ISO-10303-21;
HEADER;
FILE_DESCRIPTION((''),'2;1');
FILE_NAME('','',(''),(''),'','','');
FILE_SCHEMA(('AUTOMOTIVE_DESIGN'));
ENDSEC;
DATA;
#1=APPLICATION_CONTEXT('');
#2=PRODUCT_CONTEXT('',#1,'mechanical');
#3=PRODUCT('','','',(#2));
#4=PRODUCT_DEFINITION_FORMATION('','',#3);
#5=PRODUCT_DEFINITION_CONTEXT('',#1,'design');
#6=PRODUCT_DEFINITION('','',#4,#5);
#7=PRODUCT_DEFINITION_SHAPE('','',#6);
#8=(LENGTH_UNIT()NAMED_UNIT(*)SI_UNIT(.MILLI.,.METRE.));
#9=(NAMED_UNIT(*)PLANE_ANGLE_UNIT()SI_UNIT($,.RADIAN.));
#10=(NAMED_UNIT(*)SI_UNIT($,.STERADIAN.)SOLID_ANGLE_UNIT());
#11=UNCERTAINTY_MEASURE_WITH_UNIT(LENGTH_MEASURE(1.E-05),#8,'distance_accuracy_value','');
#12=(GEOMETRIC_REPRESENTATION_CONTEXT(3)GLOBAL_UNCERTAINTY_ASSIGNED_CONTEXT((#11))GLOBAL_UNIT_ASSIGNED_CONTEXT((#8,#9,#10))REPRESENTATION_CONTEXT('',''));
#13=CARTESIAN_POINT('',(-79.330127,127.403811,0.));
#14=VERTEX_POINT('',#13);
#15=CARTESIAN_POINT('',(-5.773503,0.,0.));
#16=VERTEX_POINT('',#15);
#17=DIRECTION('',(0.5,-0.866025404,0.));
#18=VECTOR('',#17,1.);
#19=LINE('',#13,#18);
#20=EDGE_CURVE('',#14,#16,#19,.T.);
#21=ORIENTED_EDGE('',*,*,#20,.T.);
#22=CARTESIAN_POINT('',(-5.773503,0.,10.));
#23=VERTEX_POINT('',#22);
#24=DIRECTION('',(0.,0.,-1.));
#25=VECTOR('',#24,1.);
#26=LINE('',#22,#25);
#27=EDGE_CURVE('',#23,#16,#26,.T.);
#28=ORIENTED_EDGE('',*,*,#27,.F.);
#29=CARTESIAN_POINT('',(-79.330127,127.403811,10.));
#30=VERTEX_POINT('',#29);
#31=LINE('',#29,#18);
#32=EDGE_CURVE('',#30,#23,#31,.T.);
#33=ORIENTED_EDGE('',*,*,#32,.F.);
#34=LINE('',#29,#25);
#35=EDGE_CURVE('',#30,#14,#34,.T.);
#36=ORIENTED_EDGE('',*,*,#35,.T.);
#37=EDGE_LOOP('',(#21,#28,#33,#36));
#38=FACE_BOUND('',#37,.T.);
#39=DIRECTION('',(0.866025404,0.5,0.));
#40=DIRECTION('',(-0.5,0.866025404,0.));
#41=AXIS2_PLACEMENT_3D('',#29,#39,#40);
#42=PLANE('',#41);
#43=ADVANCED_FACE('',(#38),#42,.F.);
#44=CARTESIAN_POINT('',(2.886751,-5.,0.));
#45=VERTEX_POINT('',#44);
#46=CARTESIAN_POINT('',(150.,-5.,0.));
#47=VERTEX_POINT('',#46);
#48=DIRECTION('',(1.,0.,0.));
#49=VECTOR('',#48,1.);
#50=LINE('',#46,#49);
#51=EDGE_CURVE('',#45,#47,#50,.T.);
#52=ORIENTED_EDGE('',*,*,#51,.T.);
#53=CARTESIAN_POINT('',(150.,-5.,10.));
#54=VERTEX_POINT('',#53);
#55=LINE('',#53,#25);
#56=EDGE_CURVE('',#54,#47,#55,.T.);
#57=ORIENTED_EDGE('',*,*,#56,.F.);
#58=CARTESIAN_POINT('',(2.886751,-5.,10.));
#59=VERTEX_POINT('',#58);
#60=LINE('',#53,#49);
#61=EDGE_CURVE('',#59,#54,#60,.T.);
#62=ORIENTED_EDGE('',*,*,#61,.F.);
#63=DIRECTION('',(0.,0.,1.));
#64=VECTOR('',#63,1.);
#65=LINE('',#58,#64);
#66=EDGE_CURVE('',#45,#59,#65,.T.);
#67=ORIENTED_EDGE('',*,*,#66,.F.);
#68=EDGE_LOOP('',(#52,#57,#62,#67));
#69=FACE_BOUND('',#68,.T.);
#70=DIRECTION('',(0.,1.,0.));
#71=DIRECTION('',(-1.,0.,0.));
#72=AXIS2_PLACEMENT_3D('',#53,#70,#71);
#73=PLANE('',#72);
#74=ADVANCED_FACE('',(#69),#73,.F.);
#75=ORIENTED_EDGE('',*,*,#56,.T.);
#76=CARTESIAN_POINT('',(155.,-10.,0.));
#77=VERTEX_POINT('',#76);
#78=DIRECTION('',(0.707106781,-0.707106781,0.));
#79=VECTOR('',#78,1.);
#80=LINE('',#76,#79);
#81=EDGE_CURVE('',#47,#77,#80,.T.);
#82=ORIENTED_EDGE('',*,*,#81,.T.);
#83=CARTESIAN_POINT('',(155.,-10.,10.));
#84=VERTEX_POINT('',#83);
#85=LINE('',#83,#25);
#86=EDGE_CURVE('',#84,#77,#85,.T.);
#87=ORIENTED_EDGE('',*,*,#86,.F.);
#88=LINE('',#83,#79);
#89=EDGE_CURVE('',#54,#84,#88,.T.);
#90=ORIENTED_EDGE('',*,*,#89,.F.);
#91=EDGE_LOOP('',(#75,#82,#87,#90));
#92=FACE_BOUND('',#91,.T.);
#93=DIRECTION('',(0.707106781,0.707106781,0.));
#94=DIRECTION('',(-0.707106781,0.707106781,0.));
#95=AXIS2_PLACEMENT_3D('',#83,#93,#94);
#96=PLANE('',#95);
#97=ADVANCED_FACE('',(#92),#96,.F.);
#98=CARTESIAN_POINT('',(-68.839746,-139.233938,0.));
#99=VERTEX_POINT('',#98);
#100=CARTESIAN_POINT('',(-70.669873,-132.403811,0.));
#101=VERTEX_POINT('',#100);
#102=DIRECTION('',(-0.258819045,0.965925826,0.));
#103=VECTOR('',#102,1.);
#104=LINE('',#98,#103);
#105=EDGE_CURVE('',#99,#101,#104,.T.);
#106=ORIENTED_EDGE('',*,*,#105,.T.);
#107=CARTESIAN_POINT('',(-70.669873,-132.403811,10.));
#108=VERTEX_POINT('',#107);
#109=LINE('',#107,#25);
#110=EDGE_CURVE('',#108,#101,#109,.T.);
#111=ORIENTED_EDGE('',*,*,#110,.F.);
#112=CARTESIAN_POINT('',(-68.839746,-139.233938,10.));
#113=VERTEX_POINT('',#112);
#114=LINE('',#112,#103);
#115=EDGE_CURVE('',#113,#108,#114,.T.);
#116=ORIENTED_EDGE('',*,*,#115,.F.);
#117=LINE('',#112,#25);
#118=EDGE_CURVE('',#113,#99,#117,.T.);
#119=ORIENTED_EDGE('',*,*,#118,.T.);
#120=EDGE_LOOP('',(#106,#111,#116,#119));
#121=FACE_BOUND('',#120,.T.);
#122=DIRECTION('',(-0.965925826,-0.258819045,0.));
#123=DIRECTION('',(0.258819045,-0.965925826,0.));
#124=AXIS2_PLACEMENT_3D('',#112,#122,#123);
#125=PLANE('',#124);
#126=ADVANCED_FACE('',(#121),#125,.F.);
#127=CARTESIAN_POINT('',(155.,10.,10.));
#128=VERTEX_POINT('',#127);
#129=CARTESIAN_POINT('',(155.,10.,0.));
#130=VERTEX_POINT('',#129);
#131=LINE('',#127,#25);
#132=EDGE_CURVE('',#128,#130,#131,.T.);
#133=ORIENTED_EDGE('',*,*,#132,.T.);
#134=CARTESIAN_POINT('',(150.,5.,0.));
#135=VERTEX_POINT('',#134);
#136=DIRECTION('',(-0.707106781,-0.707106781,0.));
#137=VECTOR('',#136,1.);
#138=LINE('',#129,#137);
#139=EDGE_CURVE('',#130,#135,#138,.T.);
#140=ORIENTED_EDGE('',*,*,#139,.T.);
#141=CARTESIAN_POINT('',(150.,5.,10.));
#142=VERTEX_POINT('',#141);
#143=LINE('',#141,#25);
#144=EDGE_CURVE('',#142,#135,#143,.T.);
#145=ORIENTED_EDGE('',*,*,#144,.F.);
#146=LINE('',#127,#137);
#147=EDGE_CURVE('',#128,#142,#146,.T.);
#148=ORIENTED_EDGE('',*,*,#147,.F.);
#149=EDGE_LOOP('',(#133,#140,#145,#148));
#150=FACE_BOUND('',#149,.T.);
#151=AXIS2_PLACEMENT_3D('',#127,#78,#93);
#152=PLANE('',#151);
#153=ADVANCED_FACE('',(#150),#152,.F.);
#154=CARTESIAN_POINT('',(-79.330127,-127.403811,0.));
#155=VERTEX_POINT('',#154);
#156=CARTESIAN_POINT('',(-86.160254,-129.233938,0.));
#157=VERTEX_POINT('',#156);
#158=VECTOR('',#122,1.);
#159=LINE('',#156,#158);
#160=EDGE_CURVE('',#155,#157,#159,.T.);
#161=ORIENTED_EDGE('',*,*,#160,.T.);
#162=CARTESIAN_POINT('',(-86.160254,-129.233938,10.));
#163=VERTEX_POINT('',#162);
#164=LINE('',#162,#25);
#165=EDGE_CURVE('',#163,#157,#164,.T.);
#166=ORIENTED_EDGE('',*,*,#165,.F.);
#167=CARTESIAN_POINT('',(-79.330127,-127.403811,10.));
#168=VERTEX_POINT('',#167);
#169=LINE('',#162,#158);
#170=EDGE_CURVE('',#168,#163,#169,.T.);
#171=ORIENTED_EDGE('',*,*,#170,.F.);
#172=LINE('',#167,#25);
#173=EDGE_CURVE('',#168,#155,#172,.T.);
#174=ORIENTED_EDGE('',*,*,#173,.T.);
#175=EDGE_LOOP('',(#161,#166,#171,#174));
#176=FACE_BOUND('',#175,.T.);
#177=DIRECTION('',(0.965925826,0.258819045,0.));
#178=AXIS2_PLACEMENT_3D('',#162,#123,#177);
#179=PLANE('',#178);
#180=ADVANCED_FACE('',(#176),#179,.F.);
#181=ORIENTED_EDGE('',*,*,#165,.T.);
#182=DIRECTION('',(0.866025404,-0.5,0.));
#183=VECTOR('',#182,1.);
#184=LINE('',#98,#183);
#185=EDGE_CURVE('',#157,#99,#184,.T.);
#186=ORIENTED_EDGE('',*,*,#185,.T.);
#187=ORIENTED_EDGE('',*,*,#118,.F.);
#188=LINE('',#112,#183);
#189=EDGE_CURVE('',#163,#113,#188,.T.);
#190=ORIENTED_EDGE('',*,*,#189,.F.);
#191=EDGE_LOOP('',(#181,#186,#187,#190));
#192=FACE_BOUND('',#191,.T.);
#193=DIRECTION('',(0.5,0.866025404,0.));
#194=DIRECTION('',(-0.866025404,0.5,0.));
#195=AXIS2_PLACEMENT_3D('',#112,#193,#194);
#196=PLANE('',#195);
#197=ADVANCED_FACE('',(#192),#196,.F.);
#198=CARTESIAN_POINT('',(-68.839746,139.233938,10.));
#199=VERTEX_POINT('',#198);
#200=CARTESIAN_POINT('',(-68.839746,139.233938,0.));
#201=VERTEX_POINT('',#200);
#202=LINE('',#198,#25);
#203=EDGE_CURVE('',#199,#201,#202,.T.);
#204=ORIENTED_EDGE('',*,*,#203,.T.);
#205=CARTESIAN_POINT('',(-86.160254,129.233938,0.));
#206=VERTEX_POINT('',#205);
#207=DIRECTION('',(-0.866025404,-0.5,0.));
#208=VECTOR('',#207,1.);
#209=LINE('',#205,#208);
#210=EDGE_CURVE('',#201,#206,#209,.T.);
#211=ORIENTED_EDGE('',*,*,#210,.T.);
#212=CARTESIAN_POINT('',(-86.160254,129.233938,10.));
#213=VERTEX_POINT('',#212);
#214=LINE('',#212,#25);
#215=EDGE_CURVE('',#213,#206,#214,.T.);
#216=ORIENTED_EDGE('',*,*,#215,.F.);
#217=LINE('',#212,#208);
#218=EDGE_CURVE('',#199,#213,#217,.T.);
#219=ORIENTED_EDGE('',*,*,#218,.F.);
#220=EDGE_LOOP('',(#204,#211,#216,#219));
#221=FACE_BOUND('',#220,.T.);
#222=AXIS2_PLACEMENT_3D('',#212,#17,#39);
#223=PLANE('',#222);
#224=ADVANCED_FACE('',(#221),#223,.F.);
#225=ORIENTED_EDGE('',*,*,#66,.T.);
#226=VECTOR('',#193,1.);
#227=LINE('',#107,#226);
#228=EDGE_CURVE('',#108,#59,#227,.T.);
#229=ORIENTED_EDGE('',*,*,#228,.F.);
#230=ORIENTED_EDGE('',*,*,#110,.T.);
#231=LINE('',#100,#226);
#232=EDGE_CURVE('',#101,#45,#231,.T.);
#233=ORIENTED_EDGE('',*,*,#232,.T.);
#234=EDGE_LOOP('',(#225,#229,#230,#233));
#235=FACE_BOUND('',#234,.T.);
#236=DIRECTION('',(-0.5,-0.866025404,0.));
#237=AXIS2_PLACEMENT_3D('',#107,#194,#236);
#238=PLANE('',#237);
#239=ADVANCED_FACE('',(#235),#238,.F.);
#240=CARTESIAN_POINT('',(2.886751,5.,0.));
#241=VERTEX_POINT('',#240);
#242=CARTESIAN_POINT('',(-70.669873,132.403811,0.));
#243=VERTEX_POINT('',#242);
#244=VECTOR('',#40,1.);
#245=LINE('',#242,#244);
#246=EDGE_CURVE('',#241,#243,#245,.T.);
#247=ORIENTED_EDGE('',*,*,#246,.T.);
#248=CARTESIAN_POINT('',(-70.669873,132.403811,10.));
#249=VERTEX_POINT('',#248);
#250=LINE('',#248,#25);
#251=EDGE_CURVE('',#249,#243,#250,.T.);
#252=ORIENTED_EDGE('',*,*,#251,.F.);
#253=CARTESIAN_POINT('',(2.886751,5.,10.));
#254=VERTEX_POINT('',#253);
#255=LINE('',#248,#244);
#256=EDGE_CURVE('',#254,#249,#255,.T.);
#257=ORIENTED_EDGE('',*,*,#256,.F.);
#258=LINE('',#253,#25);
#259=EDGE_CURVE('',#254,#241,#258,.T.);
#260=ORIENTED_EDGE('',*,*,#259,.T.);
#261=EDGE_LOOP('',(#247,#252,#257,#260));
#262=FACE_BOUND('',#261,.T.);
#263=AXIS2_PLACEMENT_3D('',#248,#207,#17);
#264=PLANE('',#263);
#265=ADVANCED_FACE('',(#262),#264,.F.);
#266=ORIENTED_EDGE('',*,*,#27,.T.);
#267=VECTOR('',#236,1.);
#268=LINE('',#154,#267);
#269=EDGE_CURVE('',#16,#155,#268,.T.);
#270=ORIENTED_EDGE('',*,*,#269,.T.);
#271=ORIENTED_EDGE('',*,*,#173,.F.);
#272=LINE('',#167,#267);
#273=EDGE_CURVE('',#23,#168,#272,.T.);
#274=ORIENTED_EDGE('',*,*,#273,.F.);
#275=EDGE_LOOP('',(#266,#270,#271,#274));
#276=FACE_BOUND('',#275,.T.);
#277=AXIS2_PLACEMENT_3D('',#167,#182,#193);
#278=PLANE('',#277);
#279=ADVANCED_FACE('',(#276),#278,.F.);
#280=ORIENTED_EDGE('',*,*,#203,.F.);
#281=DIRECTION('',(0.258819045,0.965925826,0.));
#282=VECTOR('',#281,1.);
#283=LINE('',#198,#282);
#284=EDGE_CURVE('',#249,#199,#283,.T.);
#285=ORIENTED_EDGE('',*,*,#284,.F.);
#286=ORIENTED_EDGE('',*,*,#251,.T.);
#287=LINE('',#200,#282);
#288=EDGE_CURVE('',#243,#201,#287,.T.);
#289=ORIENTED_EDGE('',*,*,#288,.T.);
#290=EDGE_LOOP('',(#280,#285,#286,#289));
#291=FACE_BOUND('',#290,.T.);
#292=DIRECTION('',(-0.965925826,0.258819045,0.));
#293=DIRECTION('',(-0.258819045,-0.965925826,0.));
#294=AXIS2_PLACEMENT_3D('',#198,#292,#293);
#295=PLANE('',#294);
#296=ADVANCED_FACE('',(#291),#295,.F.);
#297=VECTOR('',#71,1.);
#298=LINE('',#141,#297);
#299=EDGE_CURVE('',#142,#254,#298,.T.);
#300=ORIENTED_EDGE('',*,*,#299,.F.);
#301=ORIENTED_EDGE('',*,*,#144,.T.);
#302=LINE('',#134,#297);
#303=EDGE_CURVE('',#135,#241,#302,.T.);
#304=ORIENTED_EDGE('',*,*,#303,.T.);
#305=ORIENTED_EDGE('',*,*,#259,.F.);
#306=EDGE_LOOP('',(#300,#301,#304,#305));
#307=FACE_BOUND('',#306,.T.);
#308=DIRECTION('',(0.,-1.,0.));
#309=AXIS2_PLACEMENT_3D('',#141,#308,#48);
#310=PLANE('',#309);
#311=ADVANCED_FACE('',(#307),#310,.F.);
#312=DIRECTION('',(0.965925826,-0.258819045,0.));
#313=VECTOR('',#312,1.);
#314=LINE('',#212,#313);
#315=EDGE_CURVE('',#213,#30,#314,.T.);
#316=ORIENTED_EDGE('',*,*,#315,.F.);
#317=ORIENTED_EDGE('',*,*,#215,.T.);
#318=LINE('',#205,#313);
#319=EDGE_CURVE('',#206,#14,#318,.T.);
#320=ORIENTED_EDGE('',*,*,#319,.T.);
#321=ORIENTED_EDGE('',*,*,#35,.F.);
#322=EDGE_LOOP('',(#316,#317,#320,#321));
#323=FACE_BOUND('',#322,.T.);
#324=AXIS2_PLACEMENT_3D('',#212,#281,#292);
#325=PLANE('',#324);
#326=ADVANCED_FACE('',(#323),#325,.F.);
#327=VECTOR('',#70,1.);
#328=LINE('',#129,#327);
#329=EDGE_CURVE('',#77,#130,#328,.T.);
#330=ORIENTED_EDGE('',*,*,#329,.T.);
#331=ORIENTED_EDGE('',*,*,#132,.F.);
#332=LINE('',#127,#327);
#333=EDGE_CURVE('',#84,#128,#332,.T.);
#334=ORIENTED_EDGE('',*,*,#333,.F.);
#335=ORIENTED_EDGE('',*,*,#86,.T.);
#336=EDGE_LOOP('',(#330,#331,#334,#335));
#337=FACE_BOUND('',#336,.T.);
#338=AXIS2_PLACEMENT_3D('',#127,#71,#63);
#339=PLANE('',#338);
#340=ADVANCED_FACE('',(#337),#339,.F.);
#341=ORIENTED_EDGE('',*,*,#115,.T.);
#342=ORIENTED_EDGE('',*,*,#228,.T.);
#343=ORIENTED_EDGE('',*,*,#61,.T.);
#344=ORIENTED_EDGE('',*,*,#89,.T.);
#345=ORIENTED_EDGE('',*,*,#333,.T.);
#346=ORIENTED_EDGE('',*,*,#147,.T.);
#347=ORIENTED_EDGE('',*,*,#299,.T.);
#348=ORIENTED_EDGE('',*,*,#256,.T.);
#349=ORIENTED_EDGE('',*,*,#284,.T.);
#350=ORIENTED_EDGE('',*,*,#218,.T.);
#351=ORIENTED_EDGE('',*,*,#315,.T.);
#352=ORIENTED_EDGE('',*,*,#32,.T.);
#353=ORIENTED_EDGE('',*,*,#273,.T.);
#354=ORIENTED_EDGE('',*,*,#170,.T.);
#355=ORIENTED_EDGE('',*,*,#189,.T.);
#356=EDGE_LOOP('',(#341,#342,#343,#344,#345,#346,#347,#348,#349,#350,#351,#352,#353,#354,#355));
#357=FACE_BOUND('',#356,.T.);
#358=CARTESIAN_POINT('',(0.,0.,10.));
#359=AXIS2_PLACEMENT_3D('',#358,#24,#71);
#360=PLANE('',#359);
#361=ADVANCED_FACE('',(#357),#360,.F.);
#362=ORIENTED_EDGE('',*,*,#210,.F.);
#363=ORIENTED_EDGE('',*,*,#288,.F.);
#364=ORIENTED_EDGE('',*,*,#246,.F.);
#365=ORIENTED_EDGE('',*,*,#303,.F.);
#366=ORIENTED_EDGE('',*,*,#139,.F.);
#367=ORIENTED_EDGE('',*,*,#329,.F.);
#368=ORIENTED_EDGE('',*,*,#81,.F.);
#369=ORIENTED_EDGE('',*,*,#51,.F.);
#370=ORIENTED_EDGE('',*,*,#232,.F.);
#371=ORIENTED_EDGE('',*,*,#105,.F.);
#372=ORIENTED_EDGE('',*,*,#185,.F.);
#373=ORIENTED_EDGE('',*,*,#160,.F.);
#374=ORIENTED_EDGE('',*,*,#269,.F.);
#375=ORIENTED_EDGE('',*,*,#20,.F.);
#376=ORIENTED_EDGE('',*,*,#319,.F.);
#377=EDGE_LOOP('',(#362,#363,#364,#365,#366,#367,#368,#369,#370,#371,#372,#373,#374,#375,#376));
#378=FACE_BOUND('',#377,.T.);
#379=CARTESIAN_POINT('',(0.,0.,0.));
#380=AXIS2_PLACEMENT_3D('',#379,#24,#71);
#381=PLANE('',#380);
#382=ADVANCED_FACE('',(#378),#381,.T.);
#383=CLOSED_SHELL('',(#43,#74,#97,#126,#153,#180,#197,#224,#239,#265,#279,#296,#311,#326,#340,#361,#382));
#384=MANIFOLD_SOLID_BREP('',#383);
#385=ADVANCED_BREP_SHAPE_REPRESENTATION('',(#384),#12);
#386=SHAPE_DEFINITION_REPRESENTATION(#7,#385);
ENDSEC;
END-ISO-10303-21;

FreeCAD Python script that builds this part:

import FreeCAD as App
import Part
import Sketcher

V = App.Vector
Q = App.Units.Quantity

doc = App.newDocument("Part")
body = doc.addObject("PartDesign::Body", "Body")

sketch1 = body.newObject("Sketcher::SketchObject", "Sketch")
sketch1.AttachmentSupport = (doc.getObject("XY_Plane"), [""])
sketch1.MapMode = "FlatFace"
sketch1.addGeometry([
    Part.LineSegment(V(155, 10, 0), V(150, 5, 0)),
    Part.LineSegment(V(150, 5, 0), V(0, 5, 0)),
    Part.LineSegment(V(0, 5, 0), V(0, -5, 0)),
    Part.LineSegment(V(0, -5, 0), V(150, -5, 0)),
    Part.LineSegment(V(150, -5, 0), V(155, -10, 0)),
    Part.LineSegment(V(155, -10, 0), V(155, 10, 0)),
], False)
sketch1.addConstraint([
    Sketcher.Constraint("Coincident", 0, 2, 1, 1),
    Sketcher.Constraint("Coincident", 1, 2, 2, 1),
    Sketcher.Constraint("Coincident", 2, 2, 3, 1),
    Sketcher.Constraint("Coincident", 3, 2, 4, 1),
    Sketcher.Constraint("Coincident", 4, 2, 5, 1),
    Sketcher.Constraint("Coincident", 5, 2, 0, 1),
    Sketcher.Constraint("Horizontal", 1),
    Sketcher.Constraint("Vertical", 2),
    Sketcher.Constraint("Horizontal", 3),
    Sketcher.Constraint("Vertical", 5),
    Sketcher.Constraint("Symmetric", 1, 2, 2, 2, -1, 1),
    Sketcher.Constraint("Perpendicular", 0, 4),
    Sketcher.Constraint("Vertical", 0, 2, 3, 2),
    Sketcher.Constraint("Equal", 0, 4),
    Sketcher.Constraint("DistanceX", 1, 2, 1, 1, Q("150 mm")),
    Sketcher.Constraint("DistanceY", 2, 2, 2, 1, Q("10 mm")),
    Sketcher.Constraint("DistanceY", 5, 1, 5, 2, Q("20 mm")),
])
pad1 = body.newObject("PartDesign::Pad", "Pad")
pad1.Profile = sketch1
pad1.Length = 10
doc.recompute()

polarpattern = body.newObject("PartDesign::PolarPattern", "PolarPattern")
polarpattern.Originals = [pad1]
polarpattern.Axis = (doc.getObject("Z_Axis"), [""])
polarpattern.Angle = 360
polarpattern.Occurrences = 3
body.Tip = polarpattern

doc.recompute()
